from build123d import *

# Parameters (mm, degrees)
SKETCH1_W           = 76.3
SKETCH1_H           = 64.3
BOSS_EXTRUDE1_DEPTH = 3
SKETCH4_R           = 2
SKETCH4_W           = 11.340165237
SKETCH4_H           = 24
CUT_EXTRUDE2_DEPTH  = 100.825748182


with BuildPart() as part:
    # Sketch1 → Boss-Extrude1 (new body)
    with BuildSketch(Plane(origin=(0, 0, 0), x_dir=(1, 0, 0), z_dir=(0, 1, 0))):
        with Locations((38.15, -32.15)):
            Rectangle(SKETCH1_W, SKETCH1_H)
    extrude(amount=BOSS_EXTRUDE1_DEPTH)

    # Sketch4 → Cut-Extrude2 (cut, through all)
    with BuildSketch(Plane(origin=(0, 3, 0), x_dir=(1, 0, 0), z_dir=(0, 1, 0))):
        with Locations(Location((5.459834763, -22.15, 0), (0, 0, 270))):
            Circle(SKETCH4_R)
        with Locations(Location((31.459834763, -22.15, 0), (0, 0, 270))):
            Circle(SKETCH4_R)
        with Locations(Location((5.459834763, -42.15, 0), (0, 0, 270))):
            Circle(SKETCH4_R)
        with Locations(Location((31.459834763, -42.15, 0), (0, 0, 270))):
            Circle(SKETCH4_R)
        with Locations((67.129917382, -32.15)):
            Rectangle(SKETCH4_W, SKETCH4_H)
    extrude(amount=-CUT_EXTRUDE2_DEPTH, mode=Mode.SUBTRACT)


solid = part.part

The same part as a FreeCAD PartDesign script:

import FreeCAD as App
import Part
import Sketcher


def add_polygon(sketch, points):
    """Adds a closed chain of lines whose ends are joined by coincident constraints."""
    first, n = sketch.GeometryCount, len(points)
    for a, b in zip(points, points[1:] + points[:1]):
        sketch.addGeometry(Part.LineSegment(App.Vector(*a, 0), App.Vector(*b, 0)), False)
    for i in range(n):
        sketch.addConstraint(Sketcher.Constraint("Coincident", first + i, 2, first + (i + 1) % n, 1))

doc = App.newDocument("Part")
body = doc.addObject("PartDesign::Body", "Body")

sketch1 = doc.addObject("Sketcher::SketchObject", "Sketch")
body.addObject(sketch1)
sketch1.AttachmentSupport = (doc.XZ_Plane, [""])
sketch1.MapMode = "FlatFace"
add_polygon(sketch1, [(0, 0), (0, 64), (76, 64), (76, 0)])
sketch1.addConstraint(Sketcher.Constraint("Vertical", 0))
sketch1.addConstraint(Sketcher.Constraint("Horizontal", 1))
sketch1.addConstraint(Sketcher.Constraint("Vertical", 2))
sketch1.addConstraint(Sketcher.Constraint("Horizontal", 3))
sketch1.addConstraint(Sketcher.Constraint("Coincident", 3, 2, -1, 1))
sketch1.addConstraint(Sketcher.Constraint("DistanceX", 1, 1, 1, 2, 76.3))
sketch1.addConstraint(Sketcher.Constraint("DistanceY", 0, 1, 0, 2, 64.3))
pad1 = doc.addObject("PartDesign::Pad", "Pad")
body.addObject(pad1)
pad1.Profile = sketch1
pad1.Length = 3
pad1.Reversed = True

sketch2 = doc.addObject("Sketcher::SketchObject", "Sketch001")
body.addObject(sketch2)
sketch2.AttachmentSupport = (doc.XZ_Plane, [""])
sketch2.MapMode = "FlatFace"
sketch2.AttachmentOffset = App.Placement(App.Vector(0, 0, -3), App.Rotation())
sketch2.addGeometry(Part.Circle(App.Vector(5.5, 22.1, 0), App.Vector(0, 0, 1), 2), False)
sketch2.addGeometry(Part.Circle(App.Vector(31.5, 22.1, 0), App.Vector(0, 0, 1), 2), False)
sketch2.addGeometry(Part.Circle(App.Vector(5.5, 42.1, 0), App.Vector(0, 0, 1), 2), False)
sketch2.addGeometry(Part.Circle(App.Vector(31.5, 42.1, 0), App.Vector(0, 0, 1), 2), False)
add_polygon(sketch2, [(61.5, 20.1), (61.5, 44.1), (72.8, 44.1), (72.8, 20.1)])
sketch2.addConstraint(Sketcher.Constraint("Vertical", 4))
sketch2.addConstraint(Sketcher.Constraint("Horizontal", 5))
sketch2.addConstraint(Sketcher.Constraint("Vertical", 6))
sketch2.addConstraint(Sketcher.Constraint("Horizontal", 7))
sketch2.addConstraint(Sketcher.Constraint("Equal", 0, 1))
sketch2.addConstraint(Sketcher.Constraint("Equal", 1, 2))
sketch2.addConstraint(Sketcher.Constraint("Equal", 2, 3))
sketch2.addConstraint(Sketcher.Constraint("Horizontal", 0, 3, 1, 3))
sketch2.addConstraint(Sketcher.Constraint("Horizontal", 2, 3, 3, 3))
sketch2.addConstraint(Sketcher.Constraint("Vertical", 0, 3, 2, 3))
sketch2.addConstraint(Sketcher.Constraint("Vertical", 1, 3, 3, 3))
sketch2.addConstraint(Sketcher.Constraint("Diameter", 0, 4.0))
sketch2.addConstraint(Sketcher.Constraint("DistanceY", 4, 1, 4, 2, 24.0))
sketch2.addConstraint(Sketcher.Constraint("DistanceX", 0, 3, 1, 3, 26.0))
sketch2.addConstraint(Sketcher.Constraint("DistanceY", 0, 3, 2, 3, 20.0))
sketch2.addConstraint(Sketcher.Constraint("DistanceX", 3, 3, 4, 2, 30.0))
sketch2.addConstraint(Sketcher.Constraint("DistanceY", 3, 3, 4, 2, 2.0))
sketch2.addConstraint(Sketcher.Constraint("DistanceX", -1, 1, 5, 2, 72.8))
sketch2.addConstraint(Sketcher.Constraint("DistanceY", -1, 1, 0, 3, 22.15))
sketch2.addConstraint(Sketcher.Constraint("DistanceX", 5, 1, 5, 2, 11.340165))
pocket1 = doc.addObject("PartDesign::Pocket", "Pocket")
body.addObject(pocket1)
pocket1.Profile = sketch2
pocket1.Type = "ThroughAll"
pocket1.Reversed = True

doc.recompute()
